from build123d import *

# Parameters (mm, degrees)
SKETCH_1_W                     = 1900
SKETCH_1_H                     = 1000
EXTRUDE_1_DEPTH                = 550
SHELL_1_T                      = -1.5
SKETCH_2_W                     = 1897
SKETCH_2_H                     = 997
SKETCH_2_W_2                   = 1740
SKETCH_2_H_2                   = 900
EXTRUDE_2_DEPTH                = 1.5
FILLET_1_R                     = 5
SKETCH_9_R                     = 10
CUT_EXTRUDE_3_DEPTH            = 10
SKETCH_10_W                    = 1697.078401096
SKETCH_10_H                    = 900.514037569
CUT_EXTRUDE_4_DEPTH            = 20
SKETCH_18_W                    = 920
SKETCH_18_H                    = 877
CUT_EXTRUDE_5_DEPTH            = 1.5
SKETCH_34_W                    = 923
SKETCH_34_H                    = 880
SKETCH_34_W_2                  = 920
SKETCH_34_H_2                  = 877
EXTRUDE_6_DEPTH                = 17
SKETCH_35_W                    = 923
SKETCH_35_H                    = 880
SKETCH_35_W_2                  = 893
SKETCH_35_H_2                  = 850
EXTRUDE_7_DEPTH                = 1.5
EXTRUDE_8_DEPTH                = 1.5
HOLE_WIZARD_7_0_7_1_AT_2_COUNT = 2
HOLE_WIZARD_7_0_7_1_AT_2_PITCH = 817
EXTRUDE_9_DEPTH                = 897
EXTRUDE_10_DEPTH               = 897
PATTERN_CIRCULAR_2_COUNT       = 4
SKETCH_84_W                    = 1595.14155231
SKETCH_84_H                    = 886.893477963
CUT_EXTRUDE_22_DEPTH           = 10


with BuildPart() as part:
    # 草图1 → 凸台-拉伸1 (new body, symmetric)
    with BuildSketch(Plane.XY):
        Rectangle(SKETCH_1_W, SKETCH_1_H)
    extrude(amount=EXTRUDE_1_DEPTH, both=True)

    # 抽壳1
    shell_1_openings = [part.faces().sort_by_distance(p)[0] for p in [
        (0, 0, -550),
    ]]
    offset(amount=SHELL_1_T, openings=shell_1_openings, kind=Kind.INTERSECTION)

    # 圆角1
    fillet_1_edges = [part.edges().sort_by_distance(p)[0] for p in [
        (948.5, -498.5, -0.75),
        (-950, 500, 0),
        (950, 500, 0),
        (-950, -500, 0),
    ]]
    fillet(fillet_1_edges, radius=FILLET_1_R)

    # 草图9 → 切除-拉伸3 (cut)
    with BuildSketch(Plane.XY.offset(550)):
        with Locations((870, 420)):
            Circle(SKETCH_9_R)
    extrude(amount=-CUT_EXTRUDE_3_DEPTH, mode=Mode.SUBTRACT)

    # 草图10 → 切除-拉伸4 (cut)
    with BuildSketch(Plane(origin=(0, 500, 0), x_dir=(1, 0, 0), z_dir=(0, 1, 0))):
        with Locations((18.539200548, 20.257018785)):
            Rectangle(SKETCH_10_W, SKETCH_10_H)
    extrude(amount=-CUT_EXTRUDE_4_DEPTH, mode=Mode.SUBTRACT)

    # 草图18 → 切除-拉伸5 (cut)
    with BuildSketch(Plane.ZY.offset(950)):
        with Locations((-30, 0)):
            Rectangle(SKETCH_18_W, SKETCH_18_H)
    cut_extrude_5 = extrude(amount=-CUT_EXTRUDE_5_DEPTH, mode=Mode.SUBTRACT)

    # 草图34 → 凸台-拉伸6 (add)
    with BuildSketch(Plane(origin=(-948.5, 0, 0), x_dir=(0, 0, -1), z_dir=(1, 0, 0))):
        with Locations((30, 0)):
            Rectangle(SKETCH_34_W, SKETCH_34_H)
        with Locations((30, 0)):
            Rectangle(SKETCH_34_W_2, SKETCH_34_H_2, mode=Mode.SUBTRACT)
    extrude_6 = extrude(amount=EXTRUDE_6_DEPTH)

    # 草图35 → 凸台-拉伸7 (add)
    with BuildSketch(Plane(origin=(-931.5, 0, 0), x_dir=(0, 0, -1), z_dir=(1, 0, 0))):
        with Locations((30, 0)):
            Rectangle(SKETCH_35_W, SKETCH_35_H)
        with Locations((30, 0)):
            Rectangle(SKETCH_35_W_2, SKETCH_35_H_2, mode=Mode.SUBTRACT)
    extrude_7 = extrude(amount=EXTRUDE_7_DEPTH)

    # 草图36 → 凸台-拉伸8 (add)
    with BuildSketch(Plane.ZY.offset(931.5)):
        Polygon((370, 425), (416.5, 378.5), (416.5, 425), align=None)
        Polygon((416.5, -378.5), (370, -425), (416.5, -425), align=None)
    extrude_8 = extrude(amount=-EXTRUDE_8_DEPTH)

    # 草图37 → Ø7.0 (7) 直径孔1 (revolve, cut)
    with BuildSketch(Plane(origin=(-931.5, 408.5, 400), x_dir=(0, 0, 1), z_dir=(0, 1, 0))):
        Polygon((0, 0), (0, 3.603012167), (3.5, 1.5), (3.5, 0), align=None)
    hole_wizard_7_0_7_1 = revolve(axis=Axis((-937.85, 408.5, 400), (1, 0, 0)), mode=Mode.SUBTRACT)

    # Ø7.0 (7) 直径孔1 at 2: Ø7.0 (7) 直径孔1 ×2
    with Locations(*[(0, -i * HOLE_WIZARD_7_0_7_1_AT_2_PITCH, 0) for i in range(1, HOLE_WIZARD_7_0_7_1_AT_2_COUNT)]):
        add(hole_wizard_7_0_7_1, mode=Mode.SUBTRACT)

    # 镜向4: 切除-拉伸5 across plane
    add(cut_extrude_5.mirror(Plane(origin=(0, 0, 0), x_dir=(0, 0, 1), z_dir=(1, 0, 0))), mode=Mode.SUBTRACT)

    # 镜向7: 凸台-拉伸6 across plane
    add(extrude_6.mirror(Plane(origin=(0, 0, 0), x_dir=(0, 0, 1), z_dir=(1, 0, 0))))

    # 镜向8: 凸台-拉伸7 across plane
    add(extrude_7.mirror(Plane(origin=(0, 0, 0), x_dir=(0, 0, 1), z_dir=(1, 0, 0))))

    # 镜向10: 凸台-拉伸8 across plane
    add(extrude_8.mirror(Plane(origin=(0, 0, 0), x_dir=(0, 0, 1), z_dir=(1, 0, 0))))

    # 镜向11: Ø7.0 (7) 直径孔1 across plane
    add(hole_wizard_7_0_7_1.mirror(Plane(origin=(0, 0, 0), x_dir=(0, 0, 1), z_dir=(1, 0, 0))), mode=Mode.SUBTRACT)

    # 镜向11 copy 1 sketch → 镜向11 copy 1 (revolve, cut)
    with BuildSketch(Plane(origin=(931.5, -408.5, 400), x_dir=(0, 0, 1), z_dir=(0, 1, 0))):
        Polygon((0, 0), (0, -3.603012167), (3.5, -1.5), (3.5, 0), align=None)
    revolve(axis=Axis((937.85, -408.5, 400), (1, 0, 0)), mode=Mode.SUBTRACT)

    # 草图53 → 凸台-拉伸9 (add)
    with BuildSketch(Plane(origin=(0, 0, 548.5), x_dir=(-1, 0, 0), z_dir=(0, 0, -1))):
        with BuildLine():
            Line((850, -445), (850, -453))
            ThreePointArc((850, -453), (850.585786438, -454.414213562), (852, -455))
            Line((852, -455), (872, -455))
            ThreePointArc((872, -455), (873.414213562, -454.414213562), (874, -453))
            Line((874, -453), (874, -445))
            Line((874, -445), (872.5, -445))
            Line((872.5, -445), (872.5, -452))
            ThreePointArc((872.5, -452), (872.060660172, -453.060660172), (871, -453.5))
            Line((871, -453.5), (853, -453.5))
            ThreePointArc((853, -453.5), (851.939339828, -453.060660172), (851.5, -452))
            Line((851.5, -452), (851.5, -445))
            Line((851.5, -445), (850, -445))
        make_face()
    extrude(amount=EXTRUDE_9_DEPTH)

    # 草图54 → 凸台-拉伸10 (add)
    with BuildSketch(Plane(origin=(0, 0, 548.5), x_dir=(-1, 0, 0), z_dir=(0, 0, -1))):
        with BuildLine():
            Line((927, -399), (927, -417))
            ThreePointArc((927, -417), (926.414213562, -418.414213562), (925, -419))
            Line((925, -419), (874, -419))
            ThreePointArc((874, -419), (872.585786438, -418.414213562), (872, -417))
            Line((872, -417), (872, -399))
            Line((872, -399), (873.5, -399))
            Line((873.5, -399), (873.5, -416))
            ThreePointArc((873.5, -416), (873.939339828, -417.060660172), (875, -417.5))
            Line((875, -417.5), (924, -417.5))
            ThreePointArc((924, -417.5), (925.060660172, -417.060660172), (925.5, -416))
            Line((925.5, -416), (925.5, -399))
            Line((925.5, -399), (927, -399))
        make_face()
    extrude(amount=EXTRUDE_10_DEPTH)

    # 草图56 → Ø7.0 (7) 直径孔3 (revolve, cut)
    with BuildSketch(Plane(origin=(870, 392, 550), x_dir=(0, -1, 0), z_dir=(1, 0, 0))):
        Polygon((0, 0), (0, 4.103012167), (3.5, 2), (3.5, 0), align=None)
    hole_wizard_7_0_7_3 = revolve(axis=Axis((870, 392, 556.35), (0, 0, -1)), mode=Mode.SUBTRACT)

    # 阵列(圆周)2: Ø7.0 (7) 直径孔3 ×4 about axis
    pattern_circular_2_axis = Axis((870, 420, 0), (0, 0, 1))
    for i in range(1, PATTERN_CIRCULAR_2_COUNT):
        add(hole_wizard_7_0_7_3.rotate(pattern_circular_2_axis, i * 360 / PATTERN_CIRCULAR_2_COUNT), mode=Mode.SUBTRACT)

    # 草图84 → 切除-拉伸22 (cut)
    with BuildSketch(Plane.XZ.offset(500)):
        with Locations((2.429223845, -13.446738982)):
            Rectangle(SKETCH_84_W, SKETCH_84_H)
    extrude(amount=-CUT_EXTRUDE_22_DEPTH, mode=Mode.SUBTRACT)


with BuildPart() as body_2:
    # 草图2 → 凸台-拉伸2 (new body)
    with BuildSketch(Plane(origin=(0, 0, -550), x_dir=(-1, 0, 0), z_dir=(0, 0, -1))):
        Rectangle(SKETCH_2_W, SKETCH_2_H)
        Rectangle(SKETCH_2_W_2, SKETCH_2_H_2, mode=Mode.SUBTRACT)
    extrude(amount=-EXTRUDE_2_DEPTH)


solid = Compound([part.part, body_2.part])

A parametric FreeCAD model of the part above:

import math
import FreeCAD as App
import Part
import Sketcher

V = App.Vector
Q = App.Units.Quantity


def edges_at(feature, points):
    """Names of the edges that pass closest to the given points."""
    edges = feature.Shape.Edges
    near = lambda p: min(range(len(edges)), key=lambda i: edges[i].distToShape(Part.Vertex(*p))[0])
    return sorted({f"Edge{near(p) + 1}" for p in points})


def faces_at(feature, points):
    """Names of the faces that lie closest to the given points."""
    faces = feature.Shape.Faces
    near = lambda p: min(range(len(faces)), key=lambda i: faces[i].distToShape(Part.Vertex(*p))[0])
    return sorted({f"Face{near(p) + 1}" for p in points})


def add_polygon(sketch, points):
    """Adds a closed chain of lines whose ends are joined by coincident constraints."""
    first, n = sketch.GeometryCount, len(points)
    for a, b in zip(points, points[1:] + points[:1]):
        sketch.addGeometry(Part.LineSegment(App.Vector(*a, 0), App.Vector(*b, 0)), False)
    for i in range(n):
        sketch.addConstraint(Sketcher.Constraint("Coincident", first + i, 2, first + (i + 1) % n, 1))

doc = App.newDocument("Part")
body = doc.addObject("PartDesign::Body", "Body")

sketch1 = body.newObject("Sketcher::SketchObject", "Sketch")
sketch1.AttachmentSupport = (doc.getObject("XY_Plane"), [""])
sketch1.MapMode = "FlatFace"
add_polygon(sketch1, [(-950, 500), (-950, -500), (950, -500), (950, 500)])
sketch1.addConstraint(Sketcher.Constraint("Vertical", 0))
sketch1.addConstraint(Sketcher.Constraint("Horizontal", 1))
sketch1.addConstraint(Sketcher.Constraint("Vertical", 2))
sketch1.addConstraint(Sketcher.Constraint("Horizontal", 3))
sketch1.addConstraint(Sketcher.Constraint("Symmetric", 0, 2, 2, 2, -1, 1))
sketch1.addConstraint(Sketcher.Constraint("DistanceX", 1, 1, 1, 2, Q("1900 mm")))
sketch1.addConstraint(Sketcher.Constraint("DistanceY", 0, 2, 0, 1, Q("1000 mm")))
pad1 = body.newObject("PartDesign::Pad", "Pad")
pad1.Profile = sketch1
pad1.Length = 1100
pad1.Midplane = True
doc.recompute()

thickness = body.newObject("PartDesign::Thickness", "Thickness")
thickness.Base = (pad1, faces_at(pad1, [(0, 0, -550)]))
thickness.Value = 1.5
thickness.Reversed = True
thickness.Join = "Intersection"
doc.recompute()

fillet = body.newObject("PartDesign::Fillet", "Fillet")
fillet.Base = (thickness, edges_at(thickness, [
    (948.5, -498.5, -0.75),
    (-950, 500, 0),
    (950, 500, 0),
    (-950, -500, 0),
]))
fillet.Radius = 5

sketch2 = body.newObject("Sketcher::SketchObject", "Sketch001")
sketch2.AttachmentSupport = (doc.getObject("XY_Plane"), [""])
sketch2.MapMode = "FlatFace"
sketch2.AttachmentOffset = App.Placement(V(0, 0, 550), App.Rotation())
sketch2.addGeometry(Part.Circle(V(870, 420, 0), V(0, 0, 1), 10), False)
sketch2.addConstraint(Sketcher.Constraint("Diameter", 0, Q("20 mm")))
sketch2.addConstraint(Sketcher.Constraint("DistanceX", -1, 1, 0, 3, Q("870 mm")))
sketch2.addConstraint(Sketcher.Constraint("DistanceY", -1, 1, 0, 3, Q("420 mm")))
pocket1 = body.newObject("PartDesign::Pocket", "Pocket")
pocket1.Profile = sketch2
pocket1.Length = 10

sketch3 = body.newObject("Sketcher::SketchObject", "Sketch002")
sketch3.AttachmentSupport = (doc.getObject("XZ_Plane"), [""])
sketch3.MapMode = "FlatFace"
sketch3.AttachmentOffset = App.Placement(V(0, 0, -500), App.Rotation())
add_polygon(sketch3, [(-830, -470.514038), (-830, 430), (867.078401, 430), (867.078401, -470.514038)])
sketch3.addConstraint(Sketcher.Constraint("Vertical", 0))
sketch3.addConstraint(Sketcher.Constraint("Horizontal", 1))
sketch3.addConstraint(Sketcher.Constraint("Vertical", 2))
sketch3.addConstraint(Sketcher.Constraint("Horizontal", 3))
sketch3.addConstraint(Sketcher.Constraint("DistanceX", 0, 2, -1, 1, Q("830 mm")))
sketch3.addConstraint(Sketcher.Constraint("DistanceY", -1, 1, 0, 2, Q("430 mm")))
sketch3.addConstraint(Sketcher.Constraint("DistanceX", 1, 1, 1, 2, Q("1697.078401 mm")))
sketch3.addConstraint(Sketcher.Constraint("DistanceY", 0, 1, 0, 2, Q("900.514038 mm")))
pocket2 = body.newObject("PartDesign::Pocket", "Pocket001")
pocket2.Profile = sketch3
pocket2.Length = 20
pocket2.Reversed = True

sketch4 = body.newObject("Sketcher::SketchObject", "Sketch003")
sketch4.AttachmentSupport = (doc.getObject("YZ_Plane"), [""])
sketch4.MapMode = "FlatFace"
sketch4.AttachmentOffset = App.Placement(V(0, 0, -950), App.Rotation())
add_polygon(sketch4, [(438.5, -490), (-438.5, -490), (-438.5, 430), (438.5, 430)])
sketch4.addConstraint(Sketcher.Constraint("Horizontal", 0))
sketch4.addConstraint(Sketcher.Constraint("Vertical", 1))
sketch4.addConstraint(Sketcher.Constraint("Horizontal", 2))
sketch4.addConstraint(Sketcher.Constraint("Vertical", 3))
sketch4.addConstraint(Sketcher.Constraint("DistanceX", 0, 2, 0, 1, Q("877 mm")))
sketch4.addConstraint(Sketcher.Constraint("DistanceY", 1, 1, 1, 2, Q("920 mm")))
sketch4.addConstraint(Sketcher.Constraint("DistanceY", 0, 2, -1, 1, Q("490 mm")))
sketch4.addConstraint(Sketcher.Constraint("DistanceX", 0, 2, -1, 1, Q("438.5 mm")))
pocket3 = body.newObject("PartDesign::Pocket", "Pocket002")
pocket3.Profile = sketch4
pocket3.Length = 1.5
pocket3.Reversed = True

sketch5 = body.newObject("Sketcher::SketchObject", "Sketch004")
sketch5.AttachmentSupport = (doc.getObject("YZ_Plane"), [""])
sketch5.MapMode = "FlatFace"
sketch5.AttachmentOffset = App.Placement(V(0, 0, -948.5), App.Rotation())
add_polygon(sketch5, [(440, 431.5), (-440, 431.5), (-440, -491.5), (440, -491.5)])
add_polygon(sketch5, [(-438.5, -490), (-438.5, 430), (438.5, 430), (438.5, -490)])
sketch5.addConstraint(Sketcher.Constraint("Horizontal", 0))
sketch5.addConstraint(Sketcher.Constraint("Vertical", 1))
sketch5.addConstraint(Sketcher.Constraint("Horizontal", 2))
sketch5.addConstraint(Sketcher.Constraint("Vertical", 3))
sketch5.addConstraint(Sketcher.Constraint("Vertical", 4))
sketch5.addConstraint(Sketcher.Constraint("Horizontal", 5))
sketch5.addConstraint(Sketcher.Constraint("Vertical", 6))
sketch5.addConstraint(Sketcher.Constraint("Horizontal", 7))
sketch5.addConstraint(Sketcher.Constraint("DistanceX", 0, 2, 0, 1, Q("880 mm")))
sketch5.addConstraint(Sketcher.Constraint("DistanceX", 5, 1, 5, 2, Q("877 mm")))
sketch5.addConstraint(Sketcher.Constraint("DistanceY", 1, 2, 1, 1, Q("923 mm")))
sketch5.addConstraint(Sketcher.Constraint("DistanceY", 4, 1, 4, 2, Q("920 mm")))
sketch5.addConstraint(Sketcher.Constraint("DistanceX", 0, 2, -1, 1, Q("440 mm")))
sketch5.addConstraint(Sketcher.Constraint("DistanceY", -1, 1, 4, 2, Q("430 mm")))
sketch5.addConstraint(Sketcher.Constraint("DistanceY", -1, 1, 0, 2, Q("431.5 mm")))
sketch5.addConstraint(Sketcher.Constraint("DistanceX", 4, 2, -1, 1, Q("438.5 mm")))
pad2 = body.newObject("PartDesign::Pad", "Pad001")
pad2.Profile = sketch5
pad2.Length = 17

sketch6 = body.newObject("Sketcher::SketchObject", "Sketch005")
sketch6.AttachmentSupport = (doc.getObject("YZ_Plane"), [""])
sketch6.MapMode = "FlatFace"
sketch6.AttachmentOffset = App.Placement(V(0, 0, -931.5), App.Rotation())
add_polygon(sketch6, [(440, 431.5), (-440, 431.5), (-440, -491.5), (440, -491.5)])
add_polygon(sketch6, [(-425, -476.5), (-425, 416.5), (425, 416.5), (425, -476.5)])
sketch6.addConstraint(Sketcher.Constraint("Horizontal", 0))
sketch6.addConstraint(Sketcher.Constraint("Vertical", 1))
sketch6.addConstraint(Sketcher.Constraint("Horizontal", 2))
sketch6.addConstraint(Sketcher.Constraint("Vertical", 3))
sketch6.addConstraint(Sketcher.Constraint("Vertical", 4))
sketch6.addConstraint(Sketcher.Constraint("Horizontal", 5))
sketch6.addConstraint(Sketcher.Constraint("Vertical", 6))
sketch6.addConstraint(Sketcher.Constraint("Horizontal", 7))
sketch6.addConstraint(Sketcher.Constraint("DistanceX", 0, 2, 0, 1, Q("880 mm")))
sketch6.addConstraint(Sketcher.Constraint("DistanceX", 5, 1, 5, 2, Q("850 mm")))
sketch6.addConstraint(Sketcher.Constraint("DistanceY", 1, 2, 1, 1, Q("923 mm")))
sketch6.addConstraint(Sketcher.Constraint("DistanceY", 4, 1, 4, 2, Q("893 mm")))
sketch6.addConstraint(Sketcher.Constraint("DistanceX", 0, 2, -1, 1, Q("440 mm")))
sketch6.addConstraint(Sketcher.Constraint("DistanceX", 4, 2, -1, 1, Q("425 mm")))
sketch6.addConstraint(Sketcher.Constraint("DistanceY", 4, 2, 0, 2, Q("15 mm")))
sketch6.addConstraint(Sketcher.Constraint("DistanceY", -1, 1, 0, 2, Q("431.5 mm")))
pad3 = body.newObject("PartDesign::Pad", "Pad002")
pad3.Profile = sketch6
pad3.Length = 1.5

sketch7 = body.newObject("Sketcher::SketchObject", "Sketch006")
sketch7.AttachmentSupport = (doc.getObject("YZ_Plane"), [""])
sketch7.MapMode = "FlatFace"
sketch7.AttachmentOffset = App.Placement(V(0, 0, -931.5), App.Rotation())
add_polygon(sketch7, [(425, 370), (378.5, 416.5), (425, 416.5)])
add_polygon(sketch7, [(-378.5, 416.5), (-425, 370), (-425, 416.5)])
sketch7.addConstraint(Sketcher.Constraint("Horizontal", 1))
sketch7.addConstraint(Sketcher.Constraint("Vertical", 2))
sketch7.addConstraint(Sketcher.Constraint("Vertical", 4))
sketch7.addConstraint(Sketcher.Constraint("Horizontal", 5))
sketch7.addConstraint(Sketcher.Constraint("Symmetric", 2, 2, 3, 2, -2))
sketch7.addConstraint(Sketcher.Constraint("Symmetric", 0, 2, 5, 2, -2))
sketch7.addConstraint(Sketcher.Constraint("Perpendicular", 0, 3))
sketch7.addConstraint(Sketcher.Constraint("DistanceX", 1, 1, 1, 2, Q("46.5 mm")))
sketch7.addConstraint(Sketcher.Constraint("DistanceX", -1, 1, 1, 2, Q("425 mm")))
sketch7.addConstraint(Sketcher.Constraint("DistanceY", -1, 1, 2, 2, Q("370 mm")))
pad4 = body.newObject("PartDesign::Pad", "Pad003")
pad4.Profile = sketch7
pad4.Length = 1.5

sketch8 = body.newObject("Sketcher::SketchObject", "Sketch007")
sketch8.AttachmentSupport = (doc.getObject("XZ_Plane"), [""])
sketch8.MapMode = "FlatFace"
sketch8.AttachmentOffset = App.Placement(V(0, 0, -408.5), App.Rotation())
add_polygon(sketch8, [(-927.896988, 400), (-931.5, 400), (-931.5, 403.5), (-930, 403.5)])
sketch8.addGeometry(Part.LineSegment(V(-931.5, 400, 0), V(-927.896988, 400, 0)), True)
sketch8.addConstraint(Sketcher.Constraint("Horizontal", 0))
sketch8.addConstraint(Sketcher.Constraint("Vertical", 1))
sketch8.addConstraint(Sketcher.Constraint("Horizontal", 2))
sketch8.addConstraint(Sketcher.Constraint("Horizontal", 4))
sketch8.addConstraint(Sketcher.Constraint("Coincident", 4, 1, 0, 2))
sketch8.addConstraint(Sketcher.Constraint("Equal", 0, 4))
sketch8.addConstraint(Sketcher.Constraint("Angle", 3, Q("-59 deg")))
sketch8.addConstraint(Sketcher.Constraint("DistanceX", 2, 1, 2, 2, Q("1.5 mm")))
sketch8.addConstraint(Sketcher.Constraint("DistanceY", 1, 1, 1, 2, Q("3.5 mm")))
sketch8.addConstraint(Sketcher.Constraint("DistanceY", -1, 1, 0, 2, Q("400 mm")))
sketch8.addConstraint(Sketcher.Constraint("DistanceX", 2, 2, -1, 1, Q("930 mm")))
groove = body.newObject("PartDesign::Groove", "Groove")
groove.Profile = sketch8
groove.ReferenceAxis = (sketch8, ["Axis0"])
groove.Angle = 360
doc.recompute()

linearpattern = body.newObject("PartDesign::LinearPattern", "LinearPattern")
linearpattern.Originals = [groove]
linearpattern.Direction = (doc.getObject("Y_Axis"), [""])
linearpattern.Mode = "offset"
linearpattern.Offset = 817
linearpattern.Occurrences = 2
linearpattern.Reversed = True
body.Tip = linearpattern
doc.recompute()

mirrored = body.newObject("PartDesign::Mirrored", "Mirrored")
mirrored.Originals = [pocket3]
mirrored.MirrorPlane = (doc.getObject("YZ_Plane"), [""])
body.Tip = mirrored
doc.recompute()

mirrored2 = body.newObject("PartDesign::Mirrored", "Mirrored001")
mirrored2.Originals = [pad2]
mirrored2.MirrorPlane = (doc.getObject("YZ_Plane"), [""])
body.Tip = mirrored2
doc.recompute()

mirrored3 = body.newObject("PartDesign::Mirrored", "Mirrored002")
mirrored3.Originals = [pad3]
mirrored3.MirrorPlane = (doc.getObject("YZ_Plane"), [""])
body.Tip = mirrored3
doc.recompute()

mirrored4 = body.newObject("PartDesign::Mirrored", "Mirrored003")
mirrored4.Originals = [pad4]
mirrored4.MirrorPlane = (doc.getObject("YZ_Plane"), [""])
body.Tip = mirrored4
doc.recompute()

mirrored5 = body.newObject("PartDesign::Mirrored", "Mirrored004")
mirrored5.Originals = [groove]
mirrored5.MirrorPlane = (doc.getObject("YZ_Plane"), [""])
body.Tip = mirrored5

sketch9 = body.newObject("Sketcher::SketchObject", "Sketch008")
sketch9.AttachmentSupport = (doc.getObject("XZ_Plane"), [""])
sketch9.MapMode = "FlatFace"
sketch9.AttachmentOffset = App.Placement(V(0, 0, 408.5), App.Rotation())
add_polygon(sketch9, [(931.5, 400), (927.896988, 400), (930, 403.5), (931.5, 403.5)])
sketch9.addGeometry(Part.LineSegment(V(927.896988, 400, 0), V(931.5, 400, 0)), True)
sketch9.addConstraint(Sketcher.Constraint("Horizontal", 0))
sketch9.addConstraint(Sketcher.Constraint("Horizontal", 2))
sketch9.addConstraint(Sketcher.Constraint("Vertical", 3))
sketch9.addConstraint(Sketcher.Constraint("Horizontal", 4))
sketch9.addConstraint(Sketcher.Constraint("Coincident", 4, 1, 0, 2))
sketch9.addConstraint(Sketcher.Constraint("Vertical", 2, 2, 4, 2))
sketch9.addConstraint(Sketcher.Constraint("Angle", 1, Q("59 deg")))
sketch9.addConstraint(Sketcher.Constraint("DistanceX", 2, 1, 2, 2, Q("1.5 mm")))
sketch9.addConstraint(Sketcher.Constraint("DistanceY", 3, 2, 3, 1, Q("3.5 mm")))
sketch9.addConstraint(Sketcher.Constraint("DistanceY", -1, 1, 0, 2, Q("400 mm")))
sketch9.addConstraint(Sketcher.Constraint("DistanceX", -1, 1, 1, 2, Q("930 mm")))
groove2 = body.newObject("PartDesign::Groove", "Groove001")
groove2.Profile = sketch9
groove2.ReferenceAxis = (sketch9, ["Axis0"])
groove2.Angle = 360

sketch10 = body.newObject("Sketcher::SketchObject", "Sketch009")
sketch10.AttachmentSupport = (doc.getObject("XY_Plane"), [""])
sketch10.MapMode = "FlatFace"
sketch10.AttachmentOffset = App.Placement(V(0, 0, 548.5), App.Rotation())
sketch10.addGeometry(Part.LineSegment(V(-850, -445, 0), V(-850, -453, 0)), False)
sketch10.addGeometry(Part.ArcOfCircle(Part.Circle(V(-852, -453, 0), V(0, 0, 1), 2), math.radians(-90), math.radians(0)), False)
sketch10.addGeometry(Part.LineSegment(V(-852, -455, 0), V(-872, -455, 0)), False)
sketch10.addGeometry(Part.ArcOfCircle(Part.Circle(V(-872, -453, 0), V(0, 0, 1), 2), math.radians(-180), math.radians(-90)), False)
sketch10.addGeometry(Part.LineSegment(V(-874, -453, 0), V(-874, -445, 0)), False)
sketch10.addGeometry(Part.LineSegment(V(-874, -445, 0), V(-872.5, -445, 0)), False)
sketch10.addGeometry(Part.LineSegment(V(-872.5, -445, 0), V(-872.5, -452, 0)), False)
sketch10.addGeometry(Part.ArcOfCircle(Part.Circle(V(-871, -452, 0), V(0, 0, 1), 1.5), math.radians(180), math.radians(270)), False)
sketch10.addGeometry(Part.LineSegment(V(-871, -453.5, 0), V(-853, -453.5, 0)), False)
sketch10.addGeometry(Part.ArcOfCircle(Part.Circle(V(-853, -452, 0), V(0, 0, 1), 1.5), math.radians(-90), math.radians(0)), False)
sketch10.addGeometry(Part.LineSegment(V(-851.5, -452, 0), V(-851.5, -445, 0)), False)
sketch10.addGeometry(Part.LineSegment(V(-851.5, -445, 0), V(-850, -445, 0)), False)
sketch10.addConstraint(Sketcher.Constraint("Tangent", 0, 2, 1, 2))
sketch10.addConstraint(Sketcher.Constraint("Tangent", 1, 1, 2, 1))
sketch10.addConstraint(Sketcher.Constraint("Tangent", 2, 2, 3, 2))
sketch10.addConstraint(Sketcher.Constraint("Tangent", 3, 1, 4, 1))
sketch10.addConstraint(Sketcher.Constraint("Coincident", 4, 2, 5, 1))
sketch10.addConstraint(Sketcher.Constraint("Coincident", 5, 2, 6, 1))
sketch10.addConstraint(Sketcher.Constraint("Tangent", 6, 2, 7, 1))
sketch10.addConstraint(Sketcher.Constraint("Tangent", 7, 2, 8, 1))
sketch10.addConstraint(Sketcher.Constraint("Tangent", 8, 2, 9, 1))
sketch10.addConstraint(Sketcher.Constraint("Tangent", 9, 2, 10, 1))
sketch10.addConstraint(Sketcher.Constraint("Coincident", 10, 2, 11, 1))
sketch10.addConstraint(Sketcher.Constraint("Coincident", 11, 2, 0, 1))
sketch10.addConstraint(Sketcher.Constraint("Vertical", 0))
sketch10.addConstraint(Sketcher.Constraint("Horizontal", 2))
sketch10.addConstraint(Sketcher.Constraint("Vertical", 4))
sketch10.addConstraint(Sketcher.Constraint("Horizontal", 5))
sketch10.addConstraint(Sketcher.Constraint("Vertical", 6))
sketch10.addConstraint(Sketcher.Constraint("Horizontal", 8))
sketch10.addConstraint(Sketcher.Constraint("Vertical", 10))
sketch10.addConstraint(Sketcher.Constraint("Horizontal", 11))
sketch10.addConstraint(Sketcher.Constraint("Equal", 1, 3))
sketch10.addConstraint(Sketcher.Constraint("Equal", 7, 9))
sketch10.addConstraint(Sketcher.Constraint("Horizontal", 5, 2, 10, 2))
sketch10.addConstraint(Sketcher.Constraint("Equal", 5, 11))
sketch10.addConstraint(Sketcher.Constraint("Radius", 1, Q("2 mm")))
sketch10.addConstraint(Sketcher.Constraint("Radius", 7, Q("1.5 mm")))
sketch10.addConstraint(Sketcher.Constraint("DistanceX", 2, 2, 2, 1, Q("20 mm")))
sketch10.addConstraint(Sketcher.Constraint("DistanceX", 8, 1, 8, 2, Q("18 mm")))
sketch10.addConstraint(Sketcher.Constraint("DistanceY", 0, 2, 0, 1, Q("8 mm")))
sketch10.addConstraint(Sketcher.Constraint("DistanceY", 6, 2, 6, 1, Q("7 mm")))
sketch10.addConstraint(Sketcher.Constraint("DistanceX", 1, 3, -1, 1, Q("852 mm")))
sketch10.addConstraint(Sketcher.Constraint("DistanceY", 1, 3, -1, 1, Q("453 mm")))
pad5 = body.newObject("PartDesign::Pad", "Pad004")
pad5.Profile = sketch10
pad5.Length = 897
pad5.Reversed = True

sketch11 = body.newObject("Sketcher::SketchObject", "Sketch010")
sketch11.AttachmentSupport = (doc.getObject("XY_Plane"), [""])
sketch11.MapMode = "FlatFace"
sketch11.AttachmentOffset = App.Placement(V(0, 0, 548.5), App.Rotation())
sketch11.addGeometry(Part.LineSegment(V(-927, -417, 0), V(-927, -399, 0)), False)
sketch11.addGeometry(Part.LineSegment(V(-927, -399, 0), V(-925.5, -399, 0)), False)
sketch11.addGeometry(Part.LineSegment(V(-925.5, -399, 0), V(-925.5, -416, 0)), False)
sketch11.addGeometry(Part.ArcOfCircle(Part.Circle(V(-924, -416, 0), V(0, 0, 1), 1.5), math.radians(180), math.radians(270)), False)
sketch11.addGeometry(Part.LineSegment(V(-924, -417.5, 0), V(-875, -417.5, 0)), False)
sketch11.addGeometry(Part.ArcOfCircle(Part.Circle(V(-875, -416, 0), V(0, 0, 1), 1.5), math.radians(-90), math.radians(0)), False)
sketch11.addGeometry(Part.LineSegment(V(-873.5, -416, 0), V(-873.5, -399, 0)), False)
sketch11.addGeometry(Part.LineSegment(V(-873.5, -399, 0), V(-872, -399, 0)), False)
sketch11.addGeometry(Part.LineSegment(V(-872, -399, 0), V(-872, -417, 0)), False)
sketch11.addGeometry(Part.ArcOfCircle(Part.Circle(V(-874, -417, 0), V(0, 0, 1), 2), math.radians(-90), math.radians(0)), False)
sketch11.addGeometry(Part.LineSegment(V(-874, -419, 0), V(-925, -419, 0)), False)
sketch11.addGeometry(Part.ArcOfCircle(Part.Circle(V(-925, -417, 0), V(0, 0, 1), 2), math.radians(-180), math.radians(-90)), False)
sketch11.addConstraint(Sketcher.Constraint("Coincident", 0, 2, 1, 1))
sketch11.addConstraint(Sketcher.Constraint("Coincident", 1, 2, 2, 1))
sketch11.addConstraint(Sketcher.Constraint("Tangent", 2, 2, 3, 1))
sketch11.addConstraint(Sketcher.Constraint("Tangent", 3, 2, 4, 1))
sketch11.addConstraint(Sketcher.Constraint("Tangent", 4, 2, 5, 1))
sketch11.addConstraint(Sketcher.Constraint("Tangent", 5, 2, 6, 1))
sketch11.addConstraint(Sketcher.Constraint("Coincident", 6, 2, 7, 1))
sketch11.addConstraint(Sketcher.Constraint("Coincident", 7, 2, 8, 1))
sketch11.addConstraint(Sketcher.Constraint("Tangent", 8, 2, 9, 2))
sketch11.addConstraint(Sketcher.Constraint("Tangent", 9, 1, 10, 1))
sketch11.addConstraint(Sketcher.Constraint("Tangent", 10, 2, 11, 2))
sketch11.addConstraint(Sketcher.Constraint("Tangent", 11, 1, 0, 1))
sketch11.addConstraint(Sketcher.Constraint("Vertical", 0))
sketch11.addConstraint(Sketcher.Constraint("Horizontal", 1))
sketch11.addConstraint(Sketcher.Constraint("Vertical", 2))
sketch11.addConstraint(Sketcher.Constraint("Horizontal", 4))
sketch11.addConstraint(Sketcher.Constraint("Vertical", 6))
sketch11.addConstraint(Sketcher.Constraint("Horizontal", 7))
sketch11.addConstraint(Sketcher.Constraint("Vertical", 8))
sketch11.addConstraint(Sketcher.Constraint("Horizontal", 10))
sketch11.addConstraint(Sketcher.Constraint("Equal", 3, 5))
sketch11.addConstraint(Sketcher.Constraint("Equal", 9, 11))
sketch11.addConstraint(Sketcher.Constraint("Horizontal", 1, 2, 6, 2))
sketch11.addConstraint(Sketcher.Constraint("Equal", 1, 7))
sketch11.addConstraint(Sketcher.Constraint("Radius", 9, Q("2 mm")))
sketch11.addConstraint(Sketcher.Constraint("Radius", 3, Q("1.5 mm")))
sketch11.addConstraint(Sketcher.Constraint("DistanceX", 4, 1, 4, 2, Q("49 mm")))
sketch11.addConstraint(Sketcher.Constraint("DistanceX", 10, 2, 10, 1, Q("51 mm")))
sketch11.addConstraint(Sketcher.Constraint("DistanceY", 0, 1, 0, 2, Q("18 mm")))
sketch11.addConstraint(Sketcher.Constraint("DistanceY", 2, 2, 2, 1, Q("17 mm")))
sketch11.addConstraint(Sketcher.Constraint("DistanceX", 3, 3, -1, 1, Q("924 mm")))
sketch11.addConstraint(Sketcher.Constraint("DistanceY", 3, 3, -1, 1, Q("416 mm")))
pad6 = body.newObject("PartDesign::Pad", "Pad005")
pad6.Profile = sketch11
pad6.Length = 897
pad6.Reversed = True

sketch12 = body.newObject("Sketcher::SketchObject", "Sketch011")
sketch12.AttachmentSupport = (doc.getObject("YZ_Plane"), [""])
sketch12.MapMode = "FlatFace"
sketch12.AttachmentOffset = App.Placement(V(0, 0, 870), App.Rotation())
add_polygon(sketch12, [(392, 545.896988), (392, 550), (388.5, 550), (388.5, 548)])
sketch12.addGeometry(Part.LineSegment(V(392, 550, 0), V(392, 545.896988, 0)), True)
sketch12.addConstraint(Sketcher.Constraint("Vertical", 0))
sketch12.addConstraint(Sketcher.Constraint("Horizontal", 1))
sketch12.addConstraint(Sketcher.Constraint("Vertical", 2))
sketch12.addConstraint(Sketcher.Constraint("Vertical", 4))
sketch12.addConstraint(Sketcher.Constraint("Coincident", 4, 1, 0, 2))
sketch12.addConstraint(Sketcher.Constraint("Equal", 0, 4))
sketch12.addConstraint(Sketcher.Constraint("DistanceY", 2, 2, 2, 1, Q("2 mm")))
sketch12.addConstraint(Sketcher.Constraint("Angle", 3, Q("-31 deg")))
sketch12.addConstraint(Sketcher.Constraint("DistanceX", 1, 2, 1, 1, Q("3.5 mm")))
sketch12.addConstraint(Sketcher.Constraint("DistanceX", -1, 1, 0, 2, Q("392 mm")))
sketch12.addConstraint(Sketcher.Constraint("DistanceY", -1, 1, 0, 2, Q("550 mm")))
groove3 = body.newObject("PartDesign::Groove", "Groove002")
groove3.Profile = sketch12
groove3.ReferenceAxis = (sketch12, ["Axis0"])
groove3.Angle = 360
doc.recompute()

datumline = body.newObject("PartDesign::Line", "DatumLine")
datumline.Placement = App.Placement(V(870, 420, 0), App.Rotation(V(0, 0, 1), V(0, 0, 1)))
polarpattern = body.newObject("PartDesign::PolarPattern", "PolarPattern")
polarpattern.Originals = [groove3]
polarpattern.Axis = (datumline, [""])
polarpattern.Angle = 360
polarpattern.Occurrences = 4
body.Tip = polarpattern

sketch13 = body.newObject("Sketcher::SketchObject", "Sketch012")
sketch13.AttachmentSupport = (doc.getObject("XZ_Plane"), [""])
sketch13.MapMode = "FlatFace"
sketch13.AttachmentOffset = App.Placement(V(0, 0, 500), App.Rotation())
add_polygon(sketch13, [(-795.141552, 430), (-795.141552, -456.893478), (800, -456.893478), (800, 430)])
sketch13.addConstraint(Sketcher.Constraint("Vertical", 0))
sketch13.addConstraint(Sketcher.Constraint("Horizontal", 1))
sketch13.addConstraint(Sketcher.Constraint("Vertical", 2))
sketch13.addConstraint(Sketcher.Constraint("Horizontal", 3))
sketch13.addConstraint(Sketcher.Constraint("DistanceX", -1, 1, 1, 2, Q("800 mm")))
sketch13.addConstraint(Sketcher.Constraint("DistanceY", -1, 1, 2, 2, Q("430 mm")))
sketch13.addConstraint(Sketcher.Constraint("DistanceX", 1, 1, 1, 2, Q("1595.141552 mm")))
sketch13.addConstraint(Sketcher.Constraint("DistanceY", 0, 2, 0, 1, Q("886.893478 mm")))
pocket4 = body.newObject("PartDesign::Pocket", "Pocket003")
pocket4.Profile = sketch13
pocket4.Length = 10
body2 = doc.addObject("PartDesign::Body", "Body001")

sketch14 = body2.newObject("Sketcher::SketchObject", "Sketch013")
sketch14.AttachmentSupport = (doc.getObject("XY_Plane001"), [""])
sketch14.MapMode = "FlatFace"
sketch14.AttachmentOffset = App.Placement(V(0, 0, -550), App.Rotation())
add_polygon(sketch14, [(948.5, 498.5), (948.5, -498.5), (-948.5, -498.5), (-948.5, 498.5)])
add_polygon(sketch14, [(-870, -450), (870, -450), (870, 450), (-870, 450)])
sketch14.addConstraint(Sketcher.Constraint("Vertical", 0))
sketch14.addConstraint(Sketcher.Constraint("Horizontal", 1))
sketch14.addConstraint(Sketcher.Constraint("Vertical", 2))
sketch14.addConstraint(Sketcher.Constraint("Horizontal", 3))
sketch14.addConstraint(Sketcher.Constraint("Horizontal", 4))
sketch14.addConstraint(Sketcher.Constraint("Vertical", 5))
sketch14.addConstraint(Sketcher.Constraint("Horizontal", 6))
sketch14.addConstraint(Sketcher.Constraint("Vertical", 7))
sketch14.addConstraint(Sketcher.Constraint("Symmetric", 0, 2, 2, 2, -1, 1))
sketch14.addConstraint(Sketcher.Constraint("Symmetric", 4, 2, 6, 2, -1, 1))
sketch14.addConstraint(Sketcher.Constraint("DistanceX", 1, 2, 1, 1, Q("1897 mm")))
sketch14.addConstraint(Sketcher.Constraint("DistanceX", 4, 1, 4, 2, Q("1740 mm")))
sketch14.addConstraint(Sketcher.Constraint("DistanceY", 0, 2, 0, 1, Q("997 mm")))
sketch14.addConstraint(Sketcher.Constraint("DistanceY", 5, 1, 5, 2, Q("900 mm")))
pad7 = body2.newObject("PartDesign::Pad", "Pad006")
pad7.Profile = sketch14
pad7.Length = 1.5

doc.recompute()
